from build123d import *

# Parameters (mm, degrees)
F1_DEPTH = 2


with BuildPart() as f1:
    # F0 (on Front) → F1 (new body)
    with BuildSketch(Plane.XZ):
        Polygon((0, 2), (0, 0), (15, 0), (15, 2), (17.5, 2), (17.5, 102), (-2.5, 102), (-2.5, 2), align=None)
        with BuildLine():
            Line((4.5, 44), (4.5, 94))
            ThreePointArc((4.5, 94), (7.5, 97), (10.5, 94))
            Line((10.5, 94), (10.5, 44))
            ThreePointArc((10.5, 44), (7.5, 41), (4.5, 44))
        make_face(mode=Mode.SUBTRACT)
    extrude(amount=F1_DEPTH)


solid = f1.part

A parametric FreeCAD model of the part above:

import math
import FreeCAD as App
import Part
import Sketcher


def add_polygon(sketch, points):
    """Adds a closed chain of lines whose ends are joined by coincident constraints."""
    first, n = sketch.GeometryCount, len(points)
    for a, b in zip(points, points[1:] + points[:1]):
        sketch.addGeometry(Part.LineSegment(App.Vector(*a, 0), App.Vector(*b, 0)), False)
    for i in range(n):
        sketch.addConstraint(Sketcher.Constraint("Coincident", first + i, 2, first + (i + 1) % n, 1))

doc = App.newDocument("Part")
body = doc.addObject("PartDesign::Body", "Body")

# Sketch on XZ plane
sketch1 = doc.addObject("Sketcher::SketchObject", "Sketch")
body.addObject(sketch1)
sketch1.AttachmentSupport = (doc.XZ_Plane, [""])
sketch1.MapMode = "FlatFace"
add_polygon(sketch1, [(0, 2), (0, 0), (15, 0), (15, 2), (17.5, 2), (17.5, 102), (-2.5, 102), (-2.5, 2)])  # lines 0-7
sketch1.addGeometry(Part.ArcOfCircle(Part.Circle(App.Vector(7.5, 44, 0), App.Vector(0, 0, 1), 3), math.radians(180), math.radians(360)), False)  # 8
sketch1.addGeometry(Part.LineSegment(App.Vector(4.5, 44, 0), App.Vector(4.5, 94, 0)), False)  # 9
sketch1.addGeometry(Part.ArcOfCircle(Part.Circle(App.Vector(7.5, 94, 0), App.Vector(0, 0, 1), 3), math.radians(0), math.radians(180)), False)  # 10
sketch1.addGeometry(Part.LineSegment(App.Vector(10.5, 94, 0), App.Vector(10.5, 44, 0)), False)  # 11
sketch1.addConstraint(Sketcher.Constraint("Tangent", 8, 1, 9, 1))
sketch1.addConstraint(Sketcher.Constraint("Tangent", 9, 2, 10, 2))
sketch1.addConstraint(Sketcher.Constraint("Tangent", 10, 1, 11, 1))
sketch1.addConstraint(Sketcher.Constraint("Tangent", 11, 2, 8, 2))
sketch1.addConstraint(Sketcher.Constraint("Vertical", 0))
sketch1.addConstraint(Sketcher.Constraint("Horizontal", 1))
sketch1.addConstraint(Sketcher.Constraint("Vertical", 2))
sketch1.addConstraint(Sketcher.Constraint("Horizontal", 3))
sketch1.addConstraint(Sketcher.Constraint("Vertical", 4))
sketch1.addConstraint(Sketcher.Constraint("Horizontal", 5))
sketch1.addConstraint(Sketcher.Constraint("Vertical", 6))
sketch1.addConstraint(Sketcher.Constraint("Horizontal", 7))
sketch1.addConstraint(Sketcher.Constraint("Vertical", 9))
sketch1.addConstraint(Sketcher.Constraint("Vertical", 11))
sketch1.addConstraint(Sketcher.Constraint("Coincident", 0, 2, -1, 1))
sketch1.addConstraint(Sketcher.Constraint("Horizontal", 3, 2, 6, 2))
sketch1.addConstraint(Sketcher.Constraint("Equal", 3, 7))
sketch1.addConstraint(Sketcher.Constraint("Radius", 8, 3.0))
sketch1.addConstraint(Sketcher.Constraint("DistanceX", 1, 1, 1, 2, 15.0))
sketch1.addConstraint(Sketcher.Constraint("DistanceX", 5, 2, 5, 1, 20.0))
sketch1.addConstraint(Sketcher.Constraint("DistanceY", 0, 2, 0, 1, 2.0))
sketch1.addConstraint(Sketcher.Constraint("DistanceY", 4, 1, 4, 2, 100.0))
sketch1.addConstraint(Sketcher.Constraint("DistanceY", 9, 1, 9, 2, 50.0))
sketch1.addConstraint(Sketcher.Constraint("DistanceY", -1, 1, 8, 3, 44.0))
sketch1.addConstraint(Sketcher.Constraint("DistanceX", 8, 3, 3, 2, 10.0))
pad1 = doc.addObject("PartDesign::Pad", "Pad")
body.addObject(pad1)
pad1.Profile = sketch1
pad1.Length = 2

doc.recompute()
